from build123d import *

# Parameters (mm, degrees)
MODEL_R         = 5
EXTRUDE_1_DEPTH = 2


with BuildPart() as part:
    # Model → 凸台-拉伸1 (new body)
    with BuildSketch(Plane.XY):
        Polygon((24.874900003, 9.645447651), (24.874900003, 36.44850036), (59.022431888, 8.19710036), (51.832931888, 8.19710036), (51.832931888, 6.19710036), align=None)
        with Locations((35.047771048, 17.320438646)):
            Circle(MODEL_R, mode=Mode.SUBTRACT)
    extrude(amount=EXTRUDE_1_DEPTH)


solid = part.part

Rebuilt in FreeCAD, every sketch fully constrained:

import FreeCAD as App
import Part
import Sketcher
from FreeCAD import Vector
Q = App.Units.Quantity


def add_polygon(sketch, points):
    """Adds a closed chain of lines whose ends are joined by coincident constraints."""
    first, n = sketch.GeometryCount, len(points)
    for a, b in zip(points, points[1:] + points[:1]):
        sketch.addGeometry(Part.LineSegment(App.Vector(*a, 0), App.Vector(*b, 0)), False)
    for i in range(n):
        sketch.addConstraint(Sketcher.Constraint("Coincident", first + i, 2, first + (i + 1) % n, 1))

doc = App.newDocument("Part")
body = doc.addObject("PartDesign::Body", "Body")

sketch1 = body.newObject("Sketcher::SketchObject", "Sketch")
sketch1.AttachmentSupport = (doc.getObject("XY_Plane"), [""])
sketch1.MapMode = "FlatFace"
add_polygon(sketch1, [(24.8749, 36.4485), (24.8749, 9.645448), (51.832932, 6.1971), (51.832932, 8.1971), (59.022432, 8.1971)])
sketch1.addGeometry(Part.Circle(Vector(35.047771, 17.320439, 0), Vector(0, 0, 1), 5), False)
sketch1.addConstraint([
    Sketcher.Constraint("Vertical", 0),
    Sketcher.Constraint("Vertical", 2),
    Sketcher.Constraint("Horizontal", 3),
    Sketcher.Constraint("Diameter", 5, Q("10 mm")),
    Sketcher.Constraint("DistanceY", 2, 1, 2, 2, Q("2 mm")),
    Sketcher.Constraint("DistanceX", 3, 1, 3, 2, Q("7.1895 mm")),
    Sketcher.Constraint("DistanceX", -1, 1, 0, 2, Q("24.8749 mm")),
    Sketcher.Constraint("DistanceY", -1, 1, 1, 2, Q("6.1971 mm")),
    Sketcher.Constraint("DistanceY", -1, 1, 4, 2, Q("36.4485 mm")),
    Sketcher.Constraint("DistanceY", 0, 2, 0, 1, Q("26.803053 mm")),
    Sketcher.Constraint("DistanceX", -1, 1, 5, 3, Q("35.047771 mm")),
    Sketcher.Constraint("DistanceY", -1, 1, 5, 3, Q("17.320439 mm")),
    Sketcher.Constraint("DistanceX", -1, 1, 1, 2, Q("51.832932 mm")),
])
pad1 = body.newObject("PartDesign::Pad", "Pad")
pad1.Profile = sketch1
pad1.Length = 2

doc.recompute()
